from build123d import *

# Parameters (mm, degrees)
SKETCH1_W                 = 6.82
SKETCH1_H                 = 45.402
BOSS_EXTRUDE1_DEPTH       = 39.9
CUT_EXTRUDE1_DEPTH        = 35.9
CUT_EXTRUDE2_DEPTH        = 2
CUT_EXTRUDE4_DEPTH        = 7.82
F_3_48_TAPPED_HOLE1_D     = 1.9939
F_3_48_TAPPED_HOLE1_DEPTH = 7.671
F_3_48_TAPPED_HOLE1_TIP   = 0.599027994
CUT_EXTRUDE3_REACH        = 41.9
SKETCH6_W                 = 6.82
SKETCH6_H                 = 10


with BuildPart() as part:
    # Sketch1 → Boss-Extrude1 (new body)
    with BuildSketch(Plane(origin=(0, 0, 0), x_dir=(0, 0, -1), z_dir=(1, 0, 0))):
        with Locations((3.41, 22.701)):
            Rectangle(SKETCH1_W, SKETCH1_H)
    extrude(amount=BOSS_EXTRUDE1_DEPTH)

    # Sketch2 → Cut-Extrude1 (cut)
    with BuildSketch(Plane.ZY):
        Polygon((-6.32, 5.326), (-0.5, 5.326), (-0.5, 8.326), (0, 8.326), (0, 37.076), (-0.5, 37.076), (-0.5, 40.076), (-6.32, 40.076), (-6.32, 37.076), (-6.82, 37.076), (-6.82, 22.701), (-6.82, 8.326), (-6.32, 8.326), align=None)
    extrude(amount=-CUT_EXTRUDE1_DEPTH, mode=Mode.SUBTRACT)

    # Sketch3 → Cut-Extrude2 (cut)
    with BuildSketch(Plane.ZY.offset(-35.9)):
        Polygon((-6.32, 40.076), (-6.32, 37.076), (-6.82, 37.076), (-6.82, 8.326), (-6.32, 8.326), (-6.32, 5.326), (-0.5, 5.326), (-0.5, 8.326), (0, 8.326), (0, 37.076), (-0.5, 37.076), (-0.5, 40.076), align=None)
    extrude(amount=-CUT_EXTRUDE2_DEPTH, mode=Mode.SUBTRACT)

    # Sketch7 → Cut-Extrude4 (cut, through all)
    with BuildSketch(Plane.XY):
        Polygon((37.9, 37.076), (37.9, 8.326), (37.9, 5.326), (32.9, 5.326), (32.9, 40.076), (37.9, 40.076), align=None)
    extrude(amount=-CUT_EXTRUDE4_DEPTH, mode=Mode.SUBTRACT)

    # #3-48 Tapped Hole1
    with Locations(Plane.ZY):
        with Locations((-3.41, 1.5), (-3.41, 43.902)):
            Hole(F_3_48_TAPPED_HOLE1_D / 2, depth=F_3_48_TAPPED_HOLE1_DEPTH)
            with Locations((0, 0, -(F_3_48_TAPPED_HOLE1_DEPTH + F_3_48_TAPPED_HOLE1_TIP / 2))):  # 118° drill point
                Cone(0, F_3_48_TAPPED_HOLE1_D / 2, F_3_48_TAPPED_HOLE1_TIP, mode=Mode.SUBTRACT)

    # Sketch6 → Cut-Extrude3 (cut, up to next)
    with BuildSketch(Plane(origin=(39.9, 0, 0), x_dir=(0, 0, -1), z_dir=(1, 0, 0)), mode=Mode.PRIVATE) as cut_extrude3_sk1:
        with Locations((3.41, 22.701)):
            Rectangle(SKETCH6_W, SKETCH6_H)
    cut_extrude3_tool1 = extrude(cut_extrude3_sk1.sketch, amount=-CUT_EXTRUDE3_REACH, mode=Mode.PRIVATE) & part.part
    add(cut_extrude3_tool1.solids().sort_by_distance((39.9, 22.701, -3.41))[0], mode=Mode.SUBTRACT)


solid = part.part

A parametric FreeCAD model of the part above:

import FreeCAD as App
import Part
import Sketcher

V = App.Vector

doc = App.newDocument("Part")
params = doc.addObject("Spreadsheet::Sheet", "Params")
for row, (alias, value) in enumerate([
    ("sketch1_height", "6.82 mm"),
    ("pad1_length", "39.9 mm"),
    ("sketch2_width", "3 mm"),
    ("sketch2_height", "0.5 mm"),
    ("sketch2_width2", "28.75 mm"),
    ("sketch2_height2", "5.82 mm"),
    ("pocket1_length", "35.9 mm"),
    ("sketch3_width", "3 mm"),
    ("sketch3_height", "0.5 mm"),
    ("sketch3_width2", "28.75 mm"),
    ("sketch3_height2", "5.82 mm"),
    ("pocket2_length", "2 mm"),
    ("sketch4_width", "5 mm"),
    ("sketch4_height", "34.75 mm"),
    ("hole_diameter", "1.9939 mm"),
    ("hole_depth", "7.671 mm"),
    ("sketch6_width", "10 mm"),
    ("sketch6_height", "6.82 mm"),
], start=1):
    params.set(f"A{row}", alias)
    params.set(f"B{row}", "=" + value)
    params.setAlias(f"B{row}", alias)

body = doc.addObject("PartDesign::Body", "Body")
body.AllowCompound = True

# Sketch on YZ plane
sketch1 = body.newObject("Sketcher::SketchObject", "Sketch")
sketch1.AttachmentSupport = (doc.getObject("YZ_Plane"), [""])
sketch1.MapMode = "FlatFace"
sketch1.addGeometry([
    Part.LineSegment(V(45, 0, 0), V(0, 0, 0)),
    Part.LineSegment(V(0, 0, 0), V(0, -7, 0)),
    Part.LineSegment(V(0, -7, 0), V(45, -7, 0)),
    Part.LineSegment(V(45, -7, 0), V(45, 0, 0)),
], False)
sketch1.addConstraint([
    Sketcher.Constraint("Coincident", 0, 2, 1, 1),
    Sketcher.Constraint("Coincident", 1, 2, 2, 1),
    Sketcher.Constraint("Coincident", 2, 2, 3, 1),
    Sketcher.Constraint("Coincident", 3, 2, 0, 1),
    Sketcher.Constraint("Horizontal", 0),
    Sketcher.Constraint("Vertical", 1),
    Sketcher.Constraint("Horizontal", 2),
    Sketcher.Constraint("Vertical", 3),
    Sketcher.Constraint("Coincident", 0, 2, -1, 1),
    Sketcher.Constraint("DistanceY", 1, 2, 1, 1, 6.82),
    Sketcher.Constraint("DistanceX", 0, 2, 0, 1, 45.402),
])
sketch1.setExpression("Constraints[9]", "Params.sketch1_height")
pad1 = body.newObject("PartDesign::Pad", "Pad")
pad1.Profile = sketch1
pad1.setExpression("Length", "Params.pad1_length")

# Sketch on YZ plane
sketch2 = body.newObject("Sketcher::SketchObject", "Sketch001")
sketch2.AttachmentSupport = (doc.getObject("YZ_Plane"), [""])
sketch2.MapMode = "FlatFace"
sketch2.addGeometry([
    Part.LineSegment(V(5.3, -6.3, 0), V(5.3, -0.5, 0)),  # 0
    Part.LineSegment(V(5.3, -0.5, 0), V(8.3, -0.5, 0)),  # 1
    Part.LineSegment(V(8.3, -0.5, 0), V(8.3, 0, 0)),  # 2
    Part.LineSegment(V(8.3, 0, 0), V(37.1, 0, 0)),  # 3
    Part.LineSegment(V(37.1, 0, 0), V(37.1, -0.5, 0)),  # 4
    Part.LineSegment(V(37.1, -0.5, 0), V(40.1, -0.5, 0)),  # 5
    Part.LineSegment(V(40.1, -0.5, 0), V(40.1, -6.3, 0)),  # 6
    Part.LineSegment(V(40.1, -6.3, 0), V(37.1, -6.3, 0)),  # 7
    Part.LineSegment(V(37.1, -6.3, 0), V(37.1, -6.8, 0)),  # 8
    Part.LineSegment(V(37.1, -6.8, 0), V(8.3, -6.8, 0)),  # 9
    Part.LineSegment(V(8.3, -6.8, 0), V(8.3, -6.3, 0)),  # 10
    Part.LineSegment(V(8.3, -6.3, 0), V(5.3, -6.3, 0)),  # 11
], False)
sketch2.addConstraint([
    Sketcher.Constraint("Coincident", 0, 2, 1, 1),
    Sketcher.Constraint("Coincident", 1, 2, 2, 1),
    Sketcher.Constraint("Coincident", 2, 2, 3, 1),
    Sketcher.Constraint("Coincident", 3, 2, 4, 1),
    Sketcher.Constraint("Coincident", 4, 2, 5, 1),
    Sketcher.Constraint("Coincident", 5, 2, 6, 1),
    Sketcher.Constraint("Coincident", 6, 2, 7, 1),
    Sketcher.Constraint("Coincident", 7, 2, 8, 1),
    Sketcher.Constraint("Coincident", 8, 2, 9, 1),
    Sketcher.Constraint("Coincident", 9, 2, 10, 1),
    Sketcher.Constraint("Coincident", 10, 2, 11, 1),
    Sketcher.Constraint("Coincident", 11, 2, 0, 1),
    Sketcher.Constraint("Vertical", 0),
    Sketcher.Constraint("Horizontal", 1),
    Sketcher.Constraint("Vertical", 2),
    Sketcher.Constraint("Horizontal", 3),
    Sketcher.Constraint("Vertical", 4),
    Sketcher.Constraint("Horizontal", 5),
    Sketcher.Constraint("Vertical", 6),
    Sketcher.Constraint("Horizontal", 7),
    Sketcher.Constraint("Vertical", 8),
    Sketcher.Constraint("Horizontal", 9),
    Sketcher.Constraint("Vertical", 10),
    Sketcher.Constraint("Horizontal", 11),
    Sketcher.Constraint("PointOnObject", 2, 2, -1),
    Sketcher.Constraint("Horizontal", 1, 2, 4, 2),
    Sketcher.Constraint("Horizontal", 7, 2, 10, 2),
    Sketcher.Constraint("Vertical", 4, 2, 7, 2),
    Sketcher.Constraint("Vertical", 2, 2, 9, 2),
    Sketcher.Constraint("Equal", 1, 5),
    Sketcher.Constraint("Equal", 4, 8),
    Sketcher.Constraint("DistanceX", 1, 1, 1, 2, 3.0),
    Sketcher.Constraint("DistanceY", 2, 1, 2, 2, 0.5),
    Sketcher.Constraint("DistanceX", 3, 1, 3, 2, 28.75),
    Sketcher.Constraint("DistanceY", 0, 1, 0, 2, 5.82),
    Sketcher.Constraint("DistanceX", -1, 1, 0, 2, 5.326),
])
sketch2.setExpression("Constraints[31]", "Params.sketch2_width")
sketch2.setExpression("Constraints[32]", "Params.sketch2_height")
sketch2.setExpression("Constraints[33]", "Params.sketch2_width2")
sketch2.setExpression("Constraints[34]", "Params.sketch2_height2")
pocket1 = body.newObject("PartDesign::Pocket", "Pocket")
pocket1.Profile = sketch2
pocket1.setExpression("Length", "Params.pocket1_length")
pocket1.Reversed = True

# Sketch on YZ plane
sketch3 = body.newObject("Sketcher::SketchObject", "Sketch002")
sketch3.AttachmentSupport = (doc.getObject("YZ_Plane"), [""])
sketch3.MapMode = "FlatFace"
sketch3.AttachmentOffset = App.Placement(V(0, 0, 35.9), App.Rotation())
sketch3.addGeometry([
    Part.LineSegment(V(40.1, -6.3, 0), V(37.1, -6.3, 0)),  # 0
    Part.LineSegment(V(37.1, -6.3, 0), V(37.1, -6.8, 0)),  # 1
    Part.LineSegment(V(37.1, -6.8, 0), V(8.3, -6.8, 0)),  # 2
    Part.LineSegment(V(8.3, -6.8, 0), V(8.3, -6.3, 0)),  # 3
    Part.LineSegment(V(8.3, -6.3, 0), V(5.3, -6.3, 0)),  # 4
    Part.LineSegment(V(5.3, -6.3, 0), V(5.3, -0.5, 0)),  # 5
    Part.LineSegment(V(5.3, -0.5, 0), V(8.3, -0.5, 0)),  # 6
    Part.LineSegment(V(8.3, -0.5, 0), V(8.3, 0, 0)),  # 7
    Part.LineSegment(V(8.3, 0, 0), V(37.1, 0, 0)),  # 8
    Part.LineSegment(V(37.1, 0, 0), V(37.1, -0.5, 0)),  # 9
    Part.LineSegment(V(37.1, -0.5, 0), V(40.1, -0.5, 0)),  # 10
    Part.LineSegment(V(40.1, -0.5, 0), V(40.1, -6.3, 0)),  # 11
], False)
sketch3.addConstraint([
    Sketcher.Constraint("Coincident", 0, 2, 1, 1),
    Sketcher.Constraint("Coincident", 1, 2, 2, 1),
    Sketcher.Constraint("Coincident", 2, 2, 3, 1),
    Sketcher.Constraint("Coincident", 3, 2, 4, 1),
    Sketcher.Constraint("Coincident", 4, 2, 5, 1),
    Sketcher.Constraint("Coincident", 5, 2, 6, 1),
    Sketcher.Constraint("Coincident", 6, 2, 7, 1),
    Sketcher.Constraint("Coincident", 7, 2, 8, 1),
    Sketcher.Constraint("Coincident", 8, 2, 9, 1),
    Sketcher.Constraint("Coincident", 9, 2, 10, 1),
    Sketcher.Constraint("Coincident", 10, 2, 11, 1),
    Sketcher.Constraint("Coincident", 11, 2, 0, 1),
    Sketcher.Constraint("Horizontal", 0),
    Sketcher.Constraint("Vertical", 1),
    Sketcher.Constraint("Horizontal", 2),
    Sketcher.Constraint("Vertical", 3),
    Sketcher.Constraint("Horizontal", 4),
    Sketcher.Constraint("Vertical", 5),
    Sketcher.Constraint("Horizontal", 6),
    Sketcher.Constraint("Vertical", 7),
    Sketcher.Constraint("Horizontal", 8),
    Sketcher.Constraint("Vertical", 9),
    Sketcher.Constraint("Horizontal", 10),
    Sketcher.Constraint("Vertical", 11),
    Sketcher.Constraint("PointOnObject", 7, 2, -1),
    Sketcher.Constraint("Horizontal", 0, 2, 3, 2),
    Sketcher.Constraint("Horizontal", 6, 2, 9, 2),
    Sketcher.Constraint("Vertical", 3, 2, 6, 2),
    Sketcher.Constraint("Vertical", 1, 2, 8, 2),
    Sketcher.Constraint("Equal", 0, 4),
    Sketcher.Constraint("Equal", 3, 7),
    Sketcher.Constraint("DistanceX", 0, 2, 0, 1, 3.0),
    Sketcher.Constraint("DistanceY", 1, 2, 1, 1, 0.5),
    Sketcher.Constraint("DistanceX", 2, 2, 2, 1, 28.75),
    Sketcher.Constraint("DistanceY", 5, 1, 5, 2, 5.82),
    Sketcher.Constraint("DistanceX", -1, 1, 0, 2, 37.076),
])
sketch3.setExpression("Constraints[31]", "Params.sketch3_width")
sketch3.setExpression("Constraints[32]", "Params.sketch3_height")
sketch3.setExpression("Constraints[33]", "Params.sketch3_width2")
sketch3.setExpression("Constraints[34]", "Params.sketch3_height2")
pocket2 = body.newObject("PartDesign::Pocket", "Pocket001")
pocket2.Profile = sketch3
pocket2.setExpression("Length", "Params.pocket2_length")
pocket2.Reversed = True

# Sketch on XY plane
sketch4 = body.newObject("Sketcher::SketchObject", "Sketch003")
sketch4.AttachmentSupport = (doc.getObject("XY_Plane"), [""])
sketch4.MapMode = "FlatFace"
sketch4.addGeometry([
    Part.LineSegment(V(38, 5, 0), V(38, 40, 0)),
    Part.LineSegment(V(38, 40, 0), V(33, 40, 0)),
    Part.LineSegment(V(33, 40, 0), V(33, 5, 0)),
    Part.LineSegment(V(33, 5, 0), V(38, 5, 0)),
], False)
sketch4.addConstraint([
    Sketcher.Constraint("Coincident", 0, 2, 1, 1),
    Sketcher.Constraint("Coincident", 1, 2, 2, 1),
    Sketcher.Constraint("Coincident", 2, 2, 3, 1),
    Sketcher.Constraint("Coincident", 3, 2, 0, 1),
    Sketcher.Constraint("Vertical", 0),
    Sketcher.Constraint("Horizontal", 1),
    Sketcher.Constraint("Vertical", 2),
    Sketcher.Constraint("Horizontal", 3),
    Sketcher.Constraint("DistanceX", 1, 2, 1, 1, 5.0),
    Sketcher.Constraint("DistanceY", 0, 1, 0, 2, 34.75),
    Sketcher.Constraint("DistanceX", -1, 1, 0, 2, 37.9),
    Sketcher.Constraint("DistanceY", -1, 1, 0, 2, 40.076),
])
sketch4.setExpression("Constraints[8]", "Params.sketch4_width")
sketch4.setExpression("Constraints[9]", "Params.sketch4_height")
pocket3 = body.newObject("PartDesign::Pocket", "Pocket002")
pocket3.Profile = sketch4
pocket3.Type = "ThroughAll"

# Sketch on YZ plane
sketch5 = body.newObject("Sketcher::SketchObject", "Sketch004")
sketch5.AttachmentSupport = (doc.getObject("YZ_Plane"), [""])
sketch5.MapMode = "FlatFace"
sketch5.addGeometry([
    Part.Circle(V(1.5, -3.4, 0), V(0, 0, 1), 1),
    Part.Circle(V(43.9, -3.4, 0), V(0, 0, 1), 1),
], False)
sketch5.addConstraint([
    Sketcher.Constraint("Equal", 0, 1),
    Sketcher.Constraint("Horizontal", 0, 3, 1, 3),
    Sketcher.Constraint("Diameter", 0, 1.9939),
    Sketcher.Constraint("DistanceX", -1, 1, 0, 3, 1.5),
    Sketcher.Constraint("DistanceY", 0, 3, -1, 1, 3.41),
    Sketcher.Constraint("DistanceX", -1, 1, 1, 3, 43.902),
])
doc.recompute()
hole = body.newObject("PartDesign::Hole", "Hole")
hole.Profile = sketch5
hole.ThreadType = "None"
hole.setExpression("Diameter", "Params.hole_diameter")
hole.DepthType = "Dimension"
hole.setExpression("Depth", "Params.hole_depth")
hole.DrillPoint = "Angled"
hole.DrillPointAngle = 118
hole.Reversed = True

# Sketch on YZ plane
sketch6 = body.newObject("Sketcher::SketchObject", "Sketch005")
sketch6.AttachmentSupport = (doc.getObject("YZ_Plane"), [""])
sketch6.MapMode = "FlatFace"
sketch6.AttachmentOffset = App.Placement(V(0, 0, 39.9), App.Rotation())
sketch6.addGeometry([
    Part.LineSegment(V(28, 0, 0), V(18, 0, 0)),
    Part.LineSegment(V(18, 0, 0), V(18, -7, 0)),
    Part.LineSegment(V(18, -7, 0), V(28, -7, 0)),
    Part.LineSegment(V(28, -7, 0), V(28, 0, 0)),
], False)
sketch6.addConstraint([
    Sketcher.Constraint("Coincident", 0, 2, 1, 1),
    Sketcher.Constraint("Coincident", 1, 2, 2, 1),
    Sketcher.Constraint("Coincident", 2, 2, 3, 1),
    Sketcher.Constraint("Coincident", 3, 2, 0, 1),
    Sketcher.Constraint("Horizontal", 0),
    Sketcher.Constraint("Vertical", 1),
    Sketcher.Constraint("Horizontal", 2),
    Sketcher.Constraint("Vertical", 3),
    Sketcher.Constraint("PointOnObject", 0, 2, -1),
    Sketcher.Constraint("DistanceX", 0, 2, 0, 1, 10.0),
    Sketcher.Constraint("DistanceY", 1, 2, 1, 1, 6.82),
    Sketcher.Constraint("DistanceX", -1, 1, 0, 2, 17.701),
])
sketch6.setExpression("Constraints[9]", "Params.sketch6_width")
sketch6.setExpression("Constraints[10]", "Params.sketch6_height")
pocket4 = body.newObject("PartDesign::Pocket", "Pocket003")
pocket4.Profile = sketch6
pocket4.Type = "UpToFirst"

doc.recompute()
